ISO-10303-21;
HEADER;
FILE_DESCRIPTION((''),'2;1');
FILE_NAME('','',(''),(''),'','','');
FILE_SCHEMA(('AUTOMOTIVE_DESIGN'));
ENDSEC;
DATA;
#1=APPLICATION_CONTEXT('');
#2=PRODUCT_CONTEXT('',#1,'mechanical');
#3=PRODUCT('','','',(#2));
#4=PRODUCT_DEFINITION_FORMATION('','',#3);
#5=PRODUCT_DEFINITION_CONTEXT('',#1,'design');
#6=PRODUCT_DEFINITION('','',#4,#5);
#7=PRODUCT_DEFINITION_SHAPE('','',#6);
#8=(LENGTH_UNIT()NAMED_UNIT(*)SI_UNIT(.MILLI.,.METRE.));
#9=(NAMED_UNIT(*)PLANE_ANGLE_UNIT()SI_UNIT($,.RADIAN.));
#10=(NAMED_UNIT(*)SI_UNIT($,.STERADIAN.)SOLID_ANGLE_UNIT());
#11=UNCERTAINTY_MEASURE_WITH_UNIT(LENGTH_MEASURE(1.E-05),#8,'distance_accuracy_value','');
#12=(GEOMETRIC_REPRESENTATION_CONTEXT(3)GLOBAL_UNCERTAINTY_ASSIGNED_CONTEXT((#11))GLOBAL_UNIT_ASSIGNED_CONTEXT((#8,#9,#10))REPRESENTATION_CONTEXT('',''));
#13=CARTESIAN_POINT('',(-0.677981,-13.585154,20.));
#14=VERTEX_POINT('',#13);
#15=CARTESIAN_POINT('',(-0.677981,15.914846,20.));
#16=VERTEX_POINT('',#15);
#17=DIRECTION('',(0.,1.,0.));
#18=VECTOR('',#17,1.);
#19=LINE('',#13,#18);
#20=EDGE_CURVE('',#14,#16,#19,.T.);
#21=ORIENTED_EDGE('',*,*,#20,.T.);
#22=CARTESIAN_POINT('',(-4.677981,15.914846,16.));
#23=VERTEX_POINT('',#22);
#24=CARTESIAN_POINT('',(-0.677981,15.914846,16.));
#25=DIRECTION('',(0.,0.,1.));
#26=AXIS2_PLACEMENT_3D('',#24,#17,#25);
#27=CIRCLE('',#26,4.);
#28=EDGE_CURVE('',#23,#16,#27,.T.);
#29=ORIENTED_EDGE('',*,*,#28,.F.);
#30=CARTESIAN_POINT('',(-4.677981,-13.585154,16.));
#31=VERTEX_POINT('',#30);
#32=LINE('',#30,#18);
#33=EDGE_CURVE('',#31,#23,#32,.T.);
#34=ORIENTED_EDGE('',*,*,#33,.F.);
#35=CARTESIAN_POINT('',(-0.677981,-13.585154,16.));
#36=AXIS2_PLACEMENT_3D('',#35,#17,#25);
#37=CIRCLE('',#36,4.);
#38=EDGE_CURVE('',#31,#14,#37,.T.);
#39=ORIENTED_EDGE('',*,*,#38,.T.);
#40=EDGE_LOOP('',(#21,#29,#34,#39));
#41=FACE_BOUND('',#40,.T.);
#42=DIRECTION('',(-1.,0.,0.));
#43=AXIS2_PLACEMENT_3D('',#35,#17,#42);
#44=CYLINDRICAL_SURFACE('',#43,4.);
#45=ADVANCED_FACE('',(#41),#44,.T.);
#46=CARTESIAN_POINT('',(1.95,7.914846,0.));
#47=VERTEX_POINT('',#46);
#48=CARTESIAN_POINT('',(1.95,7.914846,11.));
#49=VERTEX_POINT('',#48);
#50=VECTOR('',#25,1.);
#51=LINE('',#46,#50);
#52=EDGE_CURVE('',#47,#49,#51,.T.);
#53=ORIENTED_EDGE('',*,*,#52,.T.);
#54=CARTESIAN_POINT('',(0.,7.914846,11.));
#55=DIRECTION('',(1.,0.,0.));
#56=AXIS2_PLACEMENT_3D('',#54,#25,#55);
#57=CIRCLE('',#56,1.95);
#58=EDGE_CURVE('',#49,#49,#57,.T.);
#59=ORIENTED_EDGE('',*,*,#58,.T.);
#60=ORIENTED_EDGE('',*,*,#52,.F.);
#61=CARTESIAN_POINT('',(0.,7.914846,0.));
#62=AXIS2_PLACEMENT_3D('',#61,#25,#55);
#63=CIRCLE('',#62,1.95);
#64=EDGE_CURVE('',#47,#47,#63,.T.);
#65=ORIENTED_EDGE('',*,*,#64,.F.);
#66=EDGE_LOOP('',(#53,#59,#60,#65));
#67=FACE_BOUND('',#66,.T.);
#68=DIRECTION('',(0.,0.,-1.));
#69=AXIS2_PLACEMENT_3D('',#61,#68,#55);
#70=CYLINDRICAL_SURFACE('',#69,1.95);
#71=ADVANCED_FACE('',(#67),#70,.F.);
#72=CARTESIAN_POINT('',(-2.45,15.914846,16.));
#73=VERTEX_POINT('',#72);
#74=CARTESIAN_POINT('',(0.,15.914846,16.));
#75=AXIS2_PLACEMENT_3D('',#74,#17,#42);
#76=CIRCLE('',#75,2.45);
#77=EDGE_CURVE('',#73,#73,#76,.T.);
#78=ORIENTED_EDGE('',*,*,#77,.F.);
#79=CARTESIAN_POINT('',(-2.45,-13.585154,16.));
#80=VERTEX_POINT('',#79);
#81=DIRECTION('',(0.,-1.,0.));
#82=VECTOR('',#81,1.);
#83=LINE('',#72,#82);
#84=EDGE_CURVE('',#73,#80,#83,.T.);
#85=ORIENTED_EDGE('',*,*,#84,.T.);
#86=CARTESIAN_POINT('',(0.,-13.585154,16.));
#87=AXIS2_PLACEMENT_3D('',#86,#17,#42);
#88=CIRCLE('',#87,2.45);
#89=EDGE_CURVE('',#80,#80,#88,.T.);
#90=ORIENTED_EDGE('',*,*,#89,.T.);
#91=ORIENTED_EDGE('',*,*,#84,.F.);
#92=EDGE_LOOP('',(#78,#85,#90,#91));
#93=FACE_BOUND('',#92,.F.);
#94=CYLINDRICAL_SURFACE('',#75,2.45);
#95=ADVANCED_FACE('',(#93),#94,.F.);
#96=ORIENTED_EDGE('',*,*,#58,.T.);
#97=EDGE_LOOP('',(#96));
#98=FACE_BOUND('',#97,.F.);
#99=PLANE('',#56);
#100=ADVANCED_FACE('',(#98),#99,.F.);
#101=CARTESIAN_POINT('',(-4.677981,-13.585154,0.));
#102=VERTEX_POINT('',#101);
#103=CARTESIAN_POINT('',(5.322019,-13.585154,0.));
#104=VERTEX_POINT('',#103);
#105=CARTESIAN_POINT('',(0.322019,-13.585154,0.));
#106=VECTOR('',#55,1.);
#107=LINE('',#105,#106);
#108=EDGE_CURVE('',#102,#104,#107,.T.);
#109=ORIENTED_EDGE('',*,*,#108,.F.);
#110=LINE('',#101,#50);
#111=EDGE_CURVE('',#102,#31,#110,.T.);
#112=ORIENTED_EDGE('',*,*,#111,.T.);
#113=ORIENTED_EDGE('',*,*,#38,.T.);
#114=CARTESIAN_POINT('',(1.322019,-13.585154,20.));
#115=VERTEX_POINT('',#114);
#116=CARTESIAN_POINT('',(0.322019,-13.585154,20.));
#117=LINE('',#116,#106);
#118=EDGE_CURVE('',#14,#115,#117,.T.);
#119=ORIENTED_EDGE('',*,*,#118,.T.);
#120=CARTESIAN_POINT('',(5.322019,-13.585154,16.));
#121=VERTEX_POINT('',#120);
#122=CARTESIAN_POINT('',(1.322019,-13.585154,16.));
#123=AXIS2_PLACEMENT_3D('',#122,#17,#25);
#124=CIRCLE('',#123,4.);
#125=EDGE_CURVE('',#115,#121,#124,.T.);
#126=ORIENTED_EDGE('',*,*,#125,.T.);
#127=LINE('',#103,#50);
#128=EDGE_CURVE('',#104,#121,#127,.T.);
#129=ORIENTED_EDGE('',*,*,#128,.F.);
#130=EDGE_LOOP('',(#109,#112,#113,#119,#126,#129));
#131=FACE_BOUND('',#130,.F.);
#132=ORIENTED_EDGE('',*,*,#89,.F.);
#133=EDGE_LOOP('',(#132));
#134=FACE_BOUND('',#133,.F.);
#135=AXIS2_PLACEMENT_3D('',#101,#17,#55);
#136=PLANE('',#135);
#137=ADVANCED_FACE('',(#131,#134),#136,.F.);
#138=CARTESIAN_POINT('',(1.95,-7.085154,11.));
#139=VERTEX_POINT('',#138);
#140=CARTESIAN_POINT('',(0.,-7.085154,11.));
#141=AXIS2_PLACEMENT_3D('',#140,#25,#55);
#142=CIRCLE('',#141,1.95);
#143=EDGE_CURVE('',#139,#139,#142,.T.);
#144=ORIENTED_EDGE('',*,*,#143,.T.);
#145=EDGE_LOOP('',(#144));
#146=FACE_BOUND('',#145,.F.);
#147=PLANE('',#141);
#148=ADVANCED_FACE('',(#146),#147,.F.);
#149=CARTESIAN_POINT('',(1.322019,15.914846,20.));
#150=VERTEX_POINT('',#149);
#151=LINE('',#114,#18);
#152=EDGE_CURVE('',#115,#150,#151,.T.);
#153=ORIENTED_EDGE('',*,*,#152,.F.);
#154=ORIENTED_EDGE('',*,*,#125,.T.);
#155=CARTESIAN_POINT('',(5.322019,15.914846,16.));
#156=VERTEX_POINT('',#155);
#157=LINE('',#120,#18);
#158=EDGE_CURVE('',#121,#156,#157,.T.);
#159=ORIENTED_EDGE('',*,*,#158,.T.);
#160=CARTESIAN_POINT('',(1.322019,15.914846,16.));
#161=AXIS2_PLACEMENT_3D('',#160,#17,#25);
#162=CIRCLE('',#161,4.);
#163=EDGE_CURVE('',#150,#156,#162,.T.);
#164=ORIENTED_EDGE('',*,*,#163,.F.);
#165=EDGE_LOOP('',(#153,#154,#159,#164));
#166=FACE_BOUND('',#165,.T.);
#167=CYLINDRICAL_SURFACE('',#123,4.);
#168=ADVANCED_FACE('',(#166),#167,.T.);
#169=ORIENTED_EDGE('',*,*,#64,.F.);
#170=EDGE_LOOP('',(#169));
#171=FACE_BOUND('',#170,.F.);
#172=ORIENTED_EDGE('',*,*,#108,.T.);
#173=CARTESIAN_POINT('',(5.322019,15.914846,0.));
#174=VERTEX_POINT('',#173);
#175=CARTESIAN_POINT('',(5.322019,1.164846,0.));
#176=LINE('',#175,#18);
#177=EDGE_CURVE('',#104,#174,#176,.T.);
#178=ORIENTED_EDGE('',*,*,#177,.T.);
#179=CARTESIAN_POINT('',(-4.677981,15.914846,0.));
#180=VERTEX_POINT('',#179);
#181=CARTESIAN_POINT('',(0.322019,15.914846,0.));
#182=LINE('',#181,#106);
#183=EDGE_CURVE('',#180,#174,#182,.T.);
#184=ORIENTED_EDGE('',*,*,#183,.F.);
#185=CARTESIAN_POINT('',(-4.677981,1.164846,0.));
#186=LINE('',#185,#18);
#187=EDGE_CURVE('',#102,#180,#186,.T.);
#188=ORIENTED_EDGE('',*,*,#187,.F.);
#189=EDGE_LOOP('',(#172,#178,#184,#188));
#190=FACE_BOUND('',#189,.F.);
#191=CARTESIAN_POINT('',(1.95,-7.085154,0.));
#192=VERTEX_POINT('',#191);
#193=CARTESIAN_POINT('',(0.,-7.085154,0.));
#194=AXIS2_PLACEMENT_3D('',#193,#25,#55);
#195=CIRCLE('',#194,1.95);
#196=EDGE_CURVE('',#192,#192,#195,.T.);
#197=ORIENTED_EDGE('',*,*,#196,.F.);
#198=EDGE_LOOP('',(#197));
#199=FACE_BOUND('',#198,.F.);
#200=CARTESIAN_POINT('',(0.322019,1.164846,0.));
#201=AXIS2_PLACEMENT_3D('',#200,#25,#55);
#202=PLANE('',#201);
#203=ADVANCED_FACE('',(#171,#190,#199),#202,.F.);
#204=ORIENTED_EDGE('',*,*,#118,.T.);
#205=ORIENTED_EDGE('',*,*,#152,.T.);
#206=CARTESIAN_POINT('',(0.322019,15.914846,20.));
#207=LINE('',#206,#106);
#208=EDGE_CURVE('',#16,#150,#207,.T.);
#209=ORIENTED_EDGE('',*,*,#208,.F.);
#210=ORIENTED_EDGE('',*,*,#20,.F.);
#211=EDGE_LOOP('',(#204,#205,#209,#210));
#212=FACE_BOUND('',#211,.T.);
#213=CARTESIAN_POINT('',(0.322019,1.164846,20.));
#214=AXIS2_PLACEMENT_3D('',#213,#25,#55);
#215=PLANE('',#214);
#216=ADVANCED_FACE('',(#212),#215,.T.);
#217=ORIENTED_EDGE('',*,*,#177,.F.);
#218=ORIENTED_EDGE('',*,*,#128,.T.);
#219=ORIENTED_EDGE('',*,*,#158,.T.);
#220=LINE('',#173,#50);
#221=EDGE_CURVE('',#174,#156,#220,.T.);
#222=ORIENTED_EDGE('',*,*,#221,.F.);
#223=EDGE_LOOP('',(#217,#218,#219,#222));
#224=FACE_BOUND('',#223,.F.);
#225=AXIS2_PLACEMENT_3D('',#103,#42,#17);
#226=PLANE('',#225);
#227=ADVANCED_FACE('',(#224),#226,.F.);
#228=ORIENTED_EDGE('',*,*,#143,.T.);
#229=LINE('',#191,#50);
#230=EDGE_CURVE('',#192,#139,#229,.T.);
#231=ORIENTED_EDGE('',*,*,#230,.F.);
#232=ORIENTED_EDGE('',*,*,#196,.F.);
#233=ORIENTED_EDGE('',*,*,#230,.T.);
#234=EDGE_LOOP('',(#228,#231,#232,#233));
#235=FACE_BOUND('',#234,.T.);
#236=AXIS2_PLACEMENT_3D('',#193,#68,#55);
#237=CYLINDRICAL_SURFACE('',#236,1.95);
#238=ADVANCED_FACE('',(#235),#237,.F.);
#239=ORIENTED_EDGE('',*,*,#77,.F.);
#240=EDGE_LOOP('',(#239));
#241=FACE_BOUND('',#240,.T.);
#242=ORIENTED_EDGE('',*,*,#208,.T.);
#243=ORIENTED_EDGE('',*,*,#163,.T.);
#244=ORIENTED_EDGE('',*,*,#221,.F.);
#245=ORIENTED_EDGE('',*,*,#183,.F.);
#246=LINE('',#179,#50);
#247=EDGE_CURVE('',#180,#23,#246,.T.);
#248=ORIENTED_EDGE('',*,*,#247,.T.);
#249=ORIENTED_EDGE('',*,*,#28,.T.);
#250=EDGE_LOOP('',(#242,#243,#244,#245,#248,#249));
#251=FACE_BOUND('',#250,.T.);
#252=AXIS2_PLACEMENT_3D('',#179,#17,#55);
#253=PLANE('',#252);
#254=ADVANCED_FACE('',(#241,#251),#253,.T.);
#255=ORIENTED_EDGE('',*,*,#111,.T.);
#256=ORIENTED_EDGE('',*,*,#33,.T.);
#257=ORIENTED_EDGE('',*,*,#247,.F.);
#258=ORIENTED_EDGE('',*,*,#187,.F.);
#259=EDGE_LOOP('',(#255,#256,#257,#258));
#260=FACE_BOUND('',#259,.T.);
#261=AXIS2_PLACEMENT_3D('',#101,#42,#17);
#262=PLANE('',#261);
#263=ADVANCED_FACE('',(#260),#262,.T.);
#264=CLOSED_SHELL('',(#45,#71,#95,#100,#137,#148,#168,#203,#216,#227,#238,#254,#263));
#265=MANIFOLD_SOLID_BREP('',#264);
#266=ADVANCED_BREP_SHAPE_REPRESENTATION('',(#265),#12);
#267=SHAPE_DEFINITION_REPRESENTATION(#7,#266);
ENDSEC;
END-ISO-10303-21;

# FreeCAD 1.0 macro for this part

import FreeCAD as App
import Part
import Sketcher
from FreeCAD import Vector
Q = App.Units.Quantity


def edges_at(feature, points):
    """Names of the edges that pass closest to the given points."""
    edges = feature.Shape.Edges
    near = lambda p: min(range(len(edges)), key=lambda i: edges[i].distToShape(Part.Vertex(*p))[0])
    return sorted({f"Edge{near(p) + 1}" for p in points})

doc = App.newDocument("Part")
body = doc.addObject("PartDesign::Body", "Body")

# Sketch on XY plane
sketch1 = body.newObject("Sketcher::SketchObject", "Sketch")
sketch1.AttachmentSupport = (doc.getObject("XY_Plane"), [""])
sketch1.MapMode = "FlatFace"
sketch1.addGeometry(Part.LineSegment(Vector(-5, 16, 0), Vector(-5, -14, 0)), False)
sketch1.addGeometry(Part.LineSegment(Vector(-5, -14, 0), Vector(5, -14, 0)), False)
sketch1.addGeometry(Part.LineSegment(Vector(5, -14, 0), Vector(5, 16, 0)), False)
sketch1.addGeometry(Part.LineSegment(Vector(5, 16, 0), Vector(-5, 16, 0)), False)
sketch1.addConstraint(Sketcher.Constraint("Coincident", 0, 2, 1, 1))
sketch1.addConstraint(Sketcher.Constraint("Coincident", 1, 2, 2, 1))
sketch1.addConstraint(Sketcher.Constraint("Coincident", 2, 2, 3, 1))
sketch1.addConstraint(Sketcher.Constraint("Coincident", 3, 2, 0, 1))
sketch1.addConstraint(Sketcher.Constraint("Vertical", 0))
sketch1.addConstraint(Sketcher.Constraint("Horizontal", 1))
sketch1.addConstraint(Sketcher.Constraint("Vertical", 2))
sketch1.addConstraint(Sketcher.Constraint("Horizontal", 3))
sketch1.addConstraint(Sketcher.Constraint("DistanceX", 1, 1, 1, 2, Q("10 mm")))
sketch1.addConstraint(Sketcher.Constraint("DistanceY", 0, 2, 0, 1, Q("29.5 mm")))
sketch1.addConstraint(Sketcher.Constraint("DistanceX", 0, 2, -1, 1, Q("4.677981 mm")))
sketch1.addConstraint(Sketcher.Constraint("DistanceY", 0, 2, -1, 1, Q("13.585154 mm")))
pad1 = body.newObject("PartDesign::Pad", "Pad")
pad1.Profile = sketch1
pad1.Length = 20

# Sketch on XZ plane
sketch2 = body.newObject("Sketcher::SketchObject", "Sketch001")
sketch2.AttachmentSupport = (doc.getObject("XZ_Plane"), [""])
sketch2.MapMode = "FlatFace"
sketch2.AttachmentOffset = App.Placement(Vector(0, 0, -15.914846), App.Rotation())
sketch2.addGeometry(Part.Circle(Vector(0, 16, 0), Vector(0, 0, 1), 2.5), False)
sketch2.addConstraint(Sketcher.Constraint("PointOnObject", 0, 3, -2))
sketch2.addConstraint(Sketcher.Constraint("Diameter", 0, Q("4.9 mm")))
sketch2.addConstraint(Sketcher.Constraint("DistanceY", -1, 1, 0, 3, Q("16 mm")))
pocket1 = body.newObject("PartDesign::Pocket", "Pocket")
pocket1.Profile = sketch2
pocket1.Type = "ThroughAll"
pocket1.Reversed = True

# Sketch on XY plane
sketch3 = body.newObject("Sketcher::SketchObject", "Sketch002")
sketch3.AttachmentSupport = (doc.getObject("XY_Plane"), [""])
sketch3.MapMode = "FlatFace"
sketch3.addGeometry(Part.Circle(Vector(0, 7.9, 0), Vector(0, 0, 1), 1.9), False)
sketch3.addGeometry(Part.Circle(Vector(0, -7.1, 0), Vector(0, 0, 1), 1.9), False)
sketch3.addConstraint(Sketcher.Constraint("Equal", 0, 1))
sketch3.addConstraint(Sketcher.Constraint("PointOnObject", 0, 3, -2))
sketch3.addConstraint(Sketcher.Constraint("PointOnObject", 1, 3, -2))
sketch3.addConstraint(Sketcher.Constraint("Diameter", 0, Q("3.9 mm")))
sketch3.addConstraint(Sketcher.Constraint("DistanceY", 1, 3, 0, 3, Q("15 mm")))
sketch3.addConstraint(Sketcher.Constraint("DistanceY", -1, 1, 0, 3, Q("7.914846 mm")))
pocket2 = body.newObject("PartDesign::Pocket", "Pocket001")
pocket2.Profile = sketch3
pocket2.Length = 11
pocket2.Reversed = True
doc.recompute()

fillet = body.newObject("PartDesign::Fillet", "Fillet")
fillet.Base = (pocket2, edges_at(pocket2, [(5.322, 1.165, 20), (-4.678, 1.165, 20)]))
fillet.Radius = 4

doc.recompute()
